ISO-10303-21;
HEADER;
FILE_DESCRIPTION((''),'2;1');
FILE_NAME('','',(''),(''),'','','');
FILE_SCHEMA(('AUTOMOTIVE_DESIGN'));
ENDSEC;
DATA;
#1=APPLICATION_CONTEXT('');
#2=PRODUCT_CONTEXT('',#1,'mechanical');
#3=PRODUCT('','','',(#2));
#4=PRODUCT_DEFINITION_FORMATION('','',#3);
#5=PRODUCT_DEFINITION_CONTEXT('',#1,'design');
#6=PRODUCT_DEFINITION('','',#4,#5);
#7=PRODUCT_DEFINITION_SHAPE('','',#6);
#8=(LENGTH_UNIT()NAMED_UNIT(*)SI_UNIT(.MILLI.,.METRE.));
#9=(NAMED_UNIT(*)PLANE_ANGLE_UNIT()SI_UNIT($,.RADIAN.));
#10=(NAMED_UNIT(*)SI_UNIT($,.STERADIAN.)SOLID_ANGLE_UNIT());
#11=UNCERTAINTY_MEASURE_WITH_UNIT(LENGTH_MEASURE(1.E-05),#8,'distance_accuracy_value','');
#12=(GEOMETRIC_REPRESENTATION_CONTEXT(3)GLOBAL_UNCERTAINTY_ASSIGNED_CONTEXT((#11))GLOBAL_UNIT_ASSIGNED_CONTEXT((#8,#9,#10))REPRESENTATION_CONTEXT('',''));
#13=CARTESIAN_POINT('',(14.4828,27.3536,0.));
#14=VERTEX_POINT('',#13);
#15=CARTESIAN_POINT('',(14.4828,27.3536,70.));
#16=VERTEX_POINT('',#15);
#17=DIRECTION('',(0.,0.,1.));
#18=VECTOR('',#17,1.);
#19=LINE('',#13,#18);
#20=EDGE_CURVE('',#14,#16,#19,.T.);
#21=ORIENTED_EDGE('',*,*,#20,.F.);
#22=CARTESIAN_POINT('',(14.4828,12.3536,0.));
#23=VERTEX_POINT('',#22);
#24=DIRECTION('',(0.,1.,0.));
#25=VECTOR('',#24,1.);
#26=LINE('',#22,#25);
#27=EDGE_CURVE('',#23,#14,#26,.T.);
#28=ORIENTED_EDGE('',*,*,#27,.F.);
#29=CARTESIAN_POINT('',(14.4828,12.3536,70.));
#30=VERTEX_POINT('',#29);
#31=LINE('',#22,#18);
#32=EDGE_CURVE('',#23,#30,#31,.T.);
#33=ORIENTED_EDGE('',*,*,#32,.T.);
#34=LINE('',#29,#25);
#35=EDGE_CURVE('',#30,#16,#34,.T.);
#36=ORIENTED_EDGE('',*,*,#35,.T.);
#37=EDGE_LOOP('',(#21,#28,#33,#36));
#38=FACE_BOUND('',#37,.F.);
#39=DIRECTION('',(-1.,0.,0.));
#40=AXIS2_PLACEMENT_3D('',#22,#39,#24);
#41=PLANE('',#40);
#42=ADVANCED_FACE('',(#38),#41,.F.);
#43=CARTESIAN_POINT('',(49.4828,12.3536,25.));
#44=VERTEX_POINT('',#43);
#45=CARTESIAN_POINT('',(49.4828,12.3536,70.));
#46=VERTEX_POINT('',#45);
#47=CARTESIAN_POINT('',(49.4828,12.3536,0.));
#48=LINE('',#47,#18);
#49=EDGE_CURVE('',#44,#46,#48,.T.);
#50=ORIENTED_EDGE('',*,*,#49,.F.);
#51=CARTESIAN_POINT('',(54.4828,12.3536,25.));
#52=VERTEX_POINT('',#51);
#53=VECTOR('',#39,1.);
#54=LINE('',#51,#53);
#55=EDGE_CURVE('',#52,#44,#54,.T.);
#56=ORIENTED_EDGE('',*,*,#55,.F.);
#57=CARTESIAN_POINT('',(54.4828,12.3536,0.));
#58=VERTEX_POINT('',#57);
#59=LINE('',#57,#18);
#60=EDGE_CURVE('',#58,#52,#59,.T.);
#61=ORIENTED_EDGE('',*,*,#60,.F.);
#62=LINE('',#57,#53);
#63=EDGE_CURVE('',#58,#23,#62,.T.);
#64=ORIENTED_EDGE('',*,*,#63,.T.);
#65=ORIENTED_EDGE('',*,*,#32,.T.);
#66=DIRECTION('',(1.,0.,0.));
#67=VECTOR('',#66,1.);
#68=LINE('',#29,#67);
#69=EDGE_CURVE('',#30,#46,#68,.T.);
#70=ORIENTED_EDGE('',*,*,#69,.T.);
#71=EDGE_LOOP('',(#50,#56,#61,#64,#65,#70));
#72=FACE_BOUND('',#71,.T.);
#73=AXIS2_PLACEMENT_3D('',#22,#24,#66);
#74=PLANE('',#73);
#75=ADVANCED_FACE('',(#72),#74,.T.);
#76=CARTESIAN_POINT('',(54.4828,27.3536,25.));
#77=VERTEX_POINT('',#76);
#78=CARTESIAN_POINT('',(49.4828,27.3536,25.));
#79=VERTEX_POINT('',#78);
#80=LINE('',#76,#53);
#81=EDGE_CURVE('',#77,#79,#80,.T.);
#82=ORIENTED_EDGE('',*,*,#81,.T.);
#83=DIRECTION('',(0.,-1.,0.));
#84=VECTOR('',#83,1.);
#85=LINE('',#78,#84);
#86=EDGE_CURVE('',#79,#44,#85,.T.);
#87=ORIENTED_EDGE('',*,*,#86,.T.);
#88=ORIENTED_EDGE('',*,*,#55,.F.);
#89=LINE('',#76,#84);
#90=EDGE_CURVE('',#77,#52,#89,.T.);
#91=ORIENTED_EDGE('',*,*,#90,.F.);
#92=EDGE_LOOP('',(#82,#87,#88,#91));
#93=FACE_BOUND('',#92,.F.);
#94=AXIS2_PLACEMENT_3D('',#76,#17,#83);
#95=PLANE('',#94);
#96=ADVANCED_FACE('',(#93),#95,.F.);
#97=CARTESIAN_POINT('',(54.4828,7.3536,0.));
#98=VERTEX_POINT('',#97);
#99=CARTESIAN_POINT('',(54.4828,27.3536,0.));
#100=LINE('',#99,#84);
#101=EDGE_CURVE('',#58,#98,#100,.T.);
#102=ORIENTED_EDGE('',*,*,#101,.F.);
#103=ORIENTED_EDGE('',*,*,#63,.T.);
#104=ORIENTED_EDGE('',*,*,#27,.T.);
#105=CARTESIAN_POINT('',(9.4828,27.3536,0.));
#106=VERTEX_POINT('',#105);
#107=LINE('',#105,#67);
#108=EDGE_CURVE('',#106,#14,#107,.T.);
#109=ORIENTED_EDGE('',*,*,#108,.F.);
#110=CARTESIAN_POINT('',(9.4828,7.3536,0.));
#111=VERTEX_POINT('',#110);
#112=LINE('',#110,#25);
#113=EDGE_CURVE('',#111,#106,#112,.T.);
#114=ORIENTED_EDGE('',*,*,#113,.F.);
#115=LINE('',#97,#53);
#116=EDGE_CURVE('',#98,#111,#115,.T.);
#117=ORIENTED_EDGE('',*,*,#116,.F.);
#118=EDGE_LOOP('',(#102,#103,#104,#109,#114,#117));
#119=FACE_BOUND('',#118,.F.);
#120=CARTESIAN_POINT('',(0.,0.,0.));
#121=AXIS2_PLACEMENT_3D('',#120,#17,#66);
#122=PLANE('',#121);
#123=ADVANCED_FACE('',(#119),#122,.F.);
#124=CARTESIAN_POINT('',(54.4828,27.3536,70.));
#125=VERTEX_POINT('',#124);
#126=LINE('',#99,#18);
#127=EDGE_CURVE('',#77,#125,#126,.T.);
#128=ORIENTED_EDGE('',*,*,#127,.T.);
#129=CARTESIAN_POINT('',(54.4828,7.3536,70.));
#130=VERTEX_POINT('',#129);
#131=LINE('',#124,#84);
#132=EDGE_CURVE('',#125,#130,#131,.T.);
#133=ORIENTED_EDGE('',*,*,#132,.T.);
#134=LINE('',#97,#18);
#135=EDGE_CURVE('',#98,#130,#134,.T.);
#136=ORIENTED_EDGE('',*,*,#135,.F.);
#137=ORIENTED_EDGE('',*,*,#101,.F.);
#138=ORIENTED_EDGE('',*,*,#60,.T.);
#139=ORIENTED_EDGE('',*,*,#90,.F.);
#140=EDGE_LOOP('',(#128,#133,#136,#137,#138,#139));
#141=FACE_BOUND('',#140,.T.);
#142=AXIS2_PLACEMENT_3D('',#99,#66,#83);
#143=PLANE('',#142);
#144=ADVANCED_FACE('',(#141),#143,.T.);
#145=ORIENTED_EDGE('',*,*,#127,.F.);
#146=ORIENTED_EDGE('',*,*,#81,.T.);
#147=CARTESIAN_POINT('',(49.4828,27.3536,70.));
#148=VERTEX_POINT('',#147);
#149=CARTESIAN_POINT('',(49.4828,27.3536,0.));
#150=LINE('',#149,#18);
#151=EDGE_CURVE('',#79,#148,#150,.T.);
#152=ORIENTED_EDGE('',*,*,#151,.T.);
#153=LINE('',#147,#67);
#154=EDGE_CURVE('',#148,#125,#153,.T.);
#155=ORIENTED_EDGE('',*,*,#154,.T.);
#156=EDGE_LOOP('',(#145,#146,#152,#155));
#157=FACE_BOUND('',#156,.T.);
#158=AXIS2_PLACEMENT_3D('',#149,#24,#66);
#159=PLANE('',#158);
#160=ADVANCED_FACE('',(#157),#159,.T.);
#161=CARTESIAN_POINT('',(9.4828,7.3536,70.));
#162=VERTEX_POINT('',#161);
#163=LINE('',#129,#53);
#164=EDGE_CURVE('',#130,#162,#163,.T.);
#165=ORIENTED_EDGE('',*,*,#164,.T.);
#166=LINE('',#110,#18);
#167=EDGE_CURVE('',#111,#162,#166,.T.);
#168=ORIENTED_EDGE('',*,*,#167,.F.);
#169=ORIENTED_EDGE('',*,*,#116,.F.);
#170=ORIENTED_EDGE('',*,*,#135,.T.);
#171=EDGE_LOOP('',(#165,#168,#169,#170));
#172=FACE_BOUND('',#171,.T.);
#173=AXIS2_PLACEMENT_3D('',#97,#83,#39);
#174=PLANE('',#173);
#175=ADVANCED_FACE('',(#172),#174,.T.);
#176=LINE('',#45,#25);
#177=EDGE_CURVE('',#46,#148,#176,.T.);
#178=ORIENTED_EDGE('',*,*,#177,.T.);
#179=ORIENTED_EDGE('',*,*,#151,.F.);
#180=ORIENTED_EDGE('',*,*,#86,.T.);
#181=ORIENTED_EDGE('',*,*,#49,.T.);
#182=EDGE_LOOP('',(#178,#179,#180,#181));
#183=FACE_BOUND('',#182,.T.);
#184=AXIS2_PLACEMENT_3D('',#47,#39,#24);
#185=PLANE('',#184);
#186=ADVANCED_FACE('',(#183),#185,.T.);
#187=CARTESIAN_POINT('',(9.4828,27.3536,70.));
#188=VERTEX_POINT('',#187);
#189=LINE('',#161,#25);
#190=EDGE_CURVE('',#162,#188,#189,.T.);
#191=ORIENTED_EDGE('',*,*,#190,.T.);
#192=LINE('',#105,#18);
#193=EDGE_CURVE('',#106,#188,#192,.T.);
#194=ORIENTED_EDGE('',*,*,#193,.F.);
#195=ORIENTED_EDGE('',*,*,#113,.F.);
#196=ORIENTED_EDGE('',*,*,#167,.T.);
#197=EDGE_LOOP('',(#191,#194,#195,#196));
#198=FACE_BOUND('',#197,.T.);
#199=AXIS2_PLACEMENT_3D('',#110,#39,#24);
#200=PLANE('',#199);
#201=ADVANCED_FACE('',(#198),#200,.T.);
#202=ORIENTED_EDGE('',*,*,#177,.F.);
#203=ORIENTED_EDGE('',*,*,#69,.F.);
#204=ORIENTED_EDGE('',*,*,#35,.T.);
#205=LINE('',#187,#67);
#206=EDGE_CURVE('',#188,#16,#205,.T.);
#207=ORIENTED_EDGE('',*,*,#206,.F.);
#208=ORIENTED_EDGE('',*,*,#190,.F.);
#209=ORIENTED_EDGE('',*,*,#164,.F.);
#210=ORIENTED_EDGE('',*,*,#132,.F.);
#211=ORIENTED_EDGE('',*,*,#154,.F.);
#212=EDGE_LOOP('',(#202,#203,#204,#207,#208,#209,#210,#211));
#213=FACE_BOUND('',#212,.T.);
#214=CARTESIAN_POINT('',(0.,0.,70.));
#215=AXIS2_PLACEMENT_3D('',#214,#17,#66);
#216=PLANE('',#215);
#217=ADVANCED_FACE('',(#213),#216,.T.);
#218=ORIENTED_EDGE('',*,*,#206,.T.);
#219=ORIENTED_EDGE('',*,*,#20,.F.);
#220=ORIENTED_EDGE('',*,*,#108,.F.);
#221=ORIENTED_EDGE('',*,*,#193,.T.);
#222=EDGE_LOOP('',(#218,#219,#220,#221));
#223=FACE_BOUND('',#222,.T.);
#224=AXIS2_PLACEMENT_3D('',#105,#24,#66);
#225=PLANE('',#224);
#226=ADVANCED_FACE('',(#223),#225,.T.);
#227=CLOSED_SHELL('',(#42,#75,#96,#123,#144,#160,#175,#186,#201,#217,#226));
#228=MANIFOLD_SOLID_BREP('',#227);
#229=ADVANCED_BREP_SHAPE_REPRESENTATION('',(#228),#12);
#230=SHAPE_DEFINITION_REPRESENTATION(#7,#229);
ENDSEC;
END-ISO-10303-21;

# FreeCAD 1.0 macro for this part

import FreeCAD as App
import Part
import Sketcher

V = App.Vector


def add_polygon(sketch, points):
    """Adds a closed chain of lines whose ends are joined by coincident constraints."""
    first, n = sketch.GeometryCount, len(points)
    for a, b in zip(points, points[1:] + points[:1]):
        sketch.addGeometry(Part.LineSegment(App.Vector(*a, 0), App.Vector(*b, 0)), False)
    for i in range(n):
        sketch.addConstraint(Sketcher.Constraint("Coincident", first + i, 2, first + (i + 1) % n, 1))

doc = App.newDocument("Part")
body = doc.addObject("PartDesign::Body", "Body")

sketch1 = doc.addObject("Sketcher::SketchObject", "Sketch")
body.addObject(sketch1)
sketch1.AttachmentSupport = (doc.XY_Plane, [""])
sketch1.MapMode = "FlatFace"
add_polygon(sketch1, [(49, 12), (14, 12), (14, 27), (9, 27), (9, 7), (54, 7), (54, 27), (49, 27)])
sketch1.addConstraint([
    Sketcher.Constraint("Horizontal", 0),
    Sketcher.Constraint("Vertical", 1),
    Sketcher.Constraint("Horizontal", 2),
    Sketcher.Constraint("Vertical", 3),
    Sketcher.Constraint("Horizontal", 4),
    Sketcher.Constraint("Vertical", 5),
    Sketcher.Constraint("Horizontal", 6),
    Sketcher.Constraint("Vertical", 7),
    Sketcher.Constraint("Horizontal", 2, 2, 5, 2),
    Sketcher.Constraint("Equal", 2, 6),
    Sketcher.Constraint("DistanceX", 0, 2, 0, 1, 35.0),
    Sketcher.Constraint("DistanceX", 2, 2, 2, 1, 5.0),
    Sketcher.Constraint("DistanceY", 1, 1, 1, 2, 15.0),
    Sketcher.Constraint("DistanceY", 3, 2, 0, 2, 5.0),
    Sketcher.Constraint("DistanceX", -1, 1, 0, 2, 14.4828),
    Sketcher.Constraint("DistanceY", -1, 1, 0, 2, 12.3536),
])
pad1 = doc.addObject("PartDesign::Pad", "Pad")
body.addObject(pad1)
pad1.Profile = sketch1
pad1.Length = 70

sketch2 = doc.addObject("Sketcher::SketchObject", "Sketch001")
body.addObject(sketch2)
sketch2.AttachmentSupport = (doc.YZ_Plane, [""])
sketch2.MapMode = "FlatFace"
sketch2.AttachmentOffset = App.Placement(V(0, 0, 54.4828), App.Rotation())
add_polygon(sketch2, [(12, 0), (27, 0), (27, 25), (12, 25)])
sketch2.addConstraint([
    Sketcher.Constraint("Horizontal", 0),
    Sketcher.Constraint("Vertical", 1),
    Sketcher.Constraint("Horizontal", 2),
    Sketcher.Constraint("Vertical", 3),
    Sketcher.Constraint("PointOnObject", 0, 2, -1),
    Sketcher.Constraint("DistanceY", 1, 1, 1, 2, 25.0),
    Sketcher.Constraint("DistanceX", 0, 1, 0, 2, 15.0),
    Sketcher.Constraint("DistanceX", -1, 1, 0, 2, 27.3536),
])
pocket1 = doc.addObject("PartDesign::Pocket", "Pocket")
body.addObject(pocket1)
pocket1.Profile = sketch2
pocket1.Length = 5

doc.recompute()
